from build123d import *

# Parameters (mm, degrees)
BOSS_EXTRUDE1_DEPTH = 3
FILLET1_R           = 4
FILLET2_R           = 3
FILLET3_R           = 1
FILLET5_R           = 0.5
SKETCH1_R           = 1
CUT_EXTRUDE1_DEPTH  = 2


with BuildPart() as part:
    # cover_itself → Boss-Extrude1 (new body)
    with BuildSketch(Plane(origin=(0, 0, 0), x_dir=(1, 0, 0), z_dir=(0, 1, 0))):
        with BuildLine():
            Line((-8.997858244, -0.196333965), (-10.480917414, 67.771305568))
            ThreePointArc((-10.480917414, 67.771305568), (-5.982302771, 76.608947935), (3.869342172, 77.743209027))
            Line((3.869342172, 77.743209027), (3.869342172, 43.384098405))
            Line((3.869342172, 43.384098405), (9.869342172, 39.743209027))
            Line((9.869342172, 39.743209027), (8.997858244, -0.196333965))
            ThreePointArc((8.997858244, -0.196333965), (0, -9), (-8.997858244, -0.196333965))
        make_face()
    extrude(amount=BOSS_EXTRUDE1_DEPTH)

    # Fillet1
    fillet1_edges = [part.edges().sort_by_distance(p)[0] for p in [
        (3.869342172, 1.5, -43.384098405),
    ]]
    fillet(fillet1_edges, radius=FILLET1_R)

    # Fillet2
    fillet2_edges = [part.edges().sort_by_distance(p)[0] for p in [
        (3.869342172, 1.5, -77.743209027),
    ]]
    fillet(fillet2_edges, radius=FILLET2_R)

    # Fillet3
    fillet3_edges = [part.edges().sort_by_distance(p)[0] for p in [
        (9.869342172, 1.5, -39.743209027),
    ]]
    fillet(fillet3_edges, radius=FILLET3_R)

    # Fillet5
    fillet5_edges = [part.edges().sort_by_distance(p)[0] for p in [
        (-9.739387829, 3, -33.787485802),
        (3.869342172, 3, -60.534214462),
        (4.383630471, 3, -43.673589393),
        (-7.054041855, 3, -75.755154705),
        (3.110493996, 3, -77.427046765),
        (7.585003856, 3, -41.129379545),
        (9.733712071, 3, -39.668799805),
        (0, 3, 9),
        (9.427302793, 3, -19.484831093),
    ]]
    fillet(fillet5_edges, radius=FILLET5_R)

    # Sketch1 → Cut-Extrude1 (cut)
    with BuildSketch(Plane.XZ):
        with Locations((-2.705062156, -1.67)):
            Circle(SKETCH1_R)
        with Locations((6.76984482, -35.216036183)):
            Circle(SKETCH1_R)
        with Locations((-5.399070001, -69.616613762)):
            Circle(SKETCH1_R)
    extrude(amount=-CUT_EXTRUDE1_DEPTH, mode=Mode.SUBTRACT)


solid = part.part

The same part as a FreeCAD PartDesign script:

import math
import FreeCAD as App
import Part
import Sketcher

V = App.Vector
Q = App.Units.Quantity


def edges_at(feature, points):
    """Names of the edges that pass closest to the given points."""
    edges = feature.Shape.Edges
    near = lambda p: min(range(len(edges)), key=lambda i: edges[i].distToShape(Part.Vertex(*p))[0])
    return sorted({f"Edge{near(p) + 1}" for p in points})

doc = App.newDocument("Part")
params = doc.addObject("Spreadsheet::Sheet", "Params")
for row, (alias, value) in enumerate([
    ("sketch1_radius", "9 mm"),
    ("pad1_length", "3 mm"),
    ("fillet_radius", "4 mm"),
    ("fillet2_radius", "3 mm"),
    ("fillet3_radius", "1 mm"),
    ("fillet4_radius", "0.5 mm"),
    ("sketch2_diameter", "2 mm"),
    ("pocket1_length", "2 mm"),
], start=1):
    params.set(f"A{row}", alias)
    params.set(f"B{row}", "=" + value)
    params.setAlias(f"B{row}", alias)

body = doc.addObject("PartDesign::Body", "Body")

# Sketch on XZ plane
sketch1 = body.newObject("Sketcher::SketchObject", "Sketch")
sketch1.AttachmentSupport = (doc.getObject("XZ_Plane"), [""])
sketch1.MapMode = "FlatFace"
sketch1.addGeometry([
    Part.LineSegment(V(-10, -68, 0), V(-9, 0, 0)),  # 0
    Part.ArcOfCircle(Part.Circle(V(0, 0, 0), V(0, 0, 1), 9), math.radians(1), math.radians(179)),  # 1
    Part.LineSegment(V(9, 0, 0), V(10, -40, 0)),  # 2
    Part.LineSegment(V(10, -40, 0), V(4, -43, 0)),  # 3
    Part.LineSegment(V(4, -43, 0), V(4, -78, 0)),  # 4
    Part.ArcOfCircle(Part.Circle(V(0, -68, 0), V(0, 0, 1), 10), math.radians(179), math.radians(292)),  # 5
], False)
sketch1.addConstraint([
    Sketcher.Constraint("Tangent", 0, 2, 1, 2),
    Sketcher.Constraint("Tangent", 1, 1, 2, 1),
    Sketcher.Constraint("Coincident", 2, 2, 3, 1),
    Sketcher.Constraint("Coincident", 3, 2, 4, 1),
    Sketcher.Constraint("Coincident", 4, 2, 5, 2),
    Sketcher.Constraint("Tangent", 5, 1, 0, 1),
    Sketcher.Constraint("Vertical", 4),
    Sketcher.Constraint("Coincident", 1, 3, -1, 1),
    Sketcher.Constraint("PointOnObject", 5, 3, -2),
    Sketcher.Constraint("Horizontal", 0, 2, 1, 1),
    Sketcher.Constraint("Radius", 1, Q("9 mm")),
    Sketcher.Constraint("DistanceY", 5, 3, -1, 1, Q("68 mm")),
    Sketcher.Constraint("DistanceX", 3, 2, 2, 2, Q("6 mm")),
    Sketcher.Constraint("DistanceY", 4, 2, 2, 2, Q("38 mm")),
    Sketcher.Constraint("Angle", 0, Q("88.75 deg")),
    Sketcher.Constraint("Angle", 3, Q("-148.75 deg")),
])
sketch1.setExpression("Constraints[10]", "Params.sketch1_radius")
pad1 = body.newObject("PartDesign::Pad", "Pad")
pad1.Profile = sketch1
pad1.setExpression("Length", "Params.pad1_length")
pad1.Reversed = True
doc.recompute()

fillet = body.newObject("PartDesign::Fillet", "Fillet")
fillet.Base = (pad1, edges_at(pad1, [(3.869, 1.5, -43.384)]))
fillet.setExpression("Radius", "Params.fillet_radius")
doc.recompute()

fillet2 = body.newObject("PartDesign::Fillet", "Fillet001")
fillet2.Base = (fillet, edges_at(fillet, [(3.869, 1.5, -77.743)]))
fillet2.setExpression("Radius", "Params.fillet2_radius")
doc.recompute()

fillet3 = body.newObject("PartDesign::Fillet", "Fillet002")
fillet3.Base = (fillet2, edges_at(fillet2, [(9.869, 1.5, -39.743)]))
fillet3.setExpression("Radius", "Params.fillet3_radius")
doc.recompute()

fillet4 = body.newObject("PartDesign::Fillet", "Fillet003")
fillet4.Base = (fillet3, edges_at(fillet3, [
    (-9.739, 3, -33.787),
    (3.869, 3, -60.534),
    (4.384, 3, -43.674),
    (-7.054, 3, -75.755),
    (3.11, 3, -77.427),
    (7.585, 3, -41.129),
    (9.734, 3, -39.669),
    (0, 3, 9),
    (9.427, 3, -19.485),
]))
fillet4.setExpression("Radius", "Params.fillet4_radius")

# Sketch on XZ plane
sketch2 = body.newObject("Sketcher::SketchObject", "Sketch001")
sketch2.AttachmentSupport = (doc.getObject("XZ_Plane"), [""])
sketch2.MapMode = "FlatFace"
sketch2.addGeometry([
    Part.Circle(V(-2.7, -1.7, 0), V(0, 0, 1), 1),
    Part.Circle(V(6.8, -35.2, 0), V(0, 0, 1), 1),
    Part.Circle(V(-5.4, -69.6, 0), V(0, 0, 1), 1),
], False)
sketch2.addConstraint([
    Sketcher.Constraint("Equal", 0, 1),
    Sketcher.Constraint("Equal", 1, 2),
    Sketcher.Constraint("Diameter", 0, Q("2 mm")),
    Sketcher.Constraint("DistanceY", 0, 3, -1, 1, Q("1.67 mm")),
    Sketcher.Constraint("DistanceX", 2, 3, -1, 1, Q("5.39907 mm")),
    Sketcher.Constraint("DistanceX", 0, 3, -1, 1, Q("2.705062 mm")),
    Sketcher.Constraint("DistanceX", -1, 1, 1, 3, Q("6.769845 mm")),
    Sketcher.Constraint("DistanceY", 1, 3, -1, 1, Q("35.216036 mm")),
    Sketcher.Constraint("DistanceY", 2, 3, -1, 1, Q("69.616614 mm")),
])
sketch2.setExpression("Constraints[2]", "Params.sketch2_diameter")
pocket1 = body.newObject("PartDesign::Pocket", "Pocket")
pocket1.Profile = sketch2
pocket1.setExpression("Length", "Params.pocket1_length")

doc.recompute()
